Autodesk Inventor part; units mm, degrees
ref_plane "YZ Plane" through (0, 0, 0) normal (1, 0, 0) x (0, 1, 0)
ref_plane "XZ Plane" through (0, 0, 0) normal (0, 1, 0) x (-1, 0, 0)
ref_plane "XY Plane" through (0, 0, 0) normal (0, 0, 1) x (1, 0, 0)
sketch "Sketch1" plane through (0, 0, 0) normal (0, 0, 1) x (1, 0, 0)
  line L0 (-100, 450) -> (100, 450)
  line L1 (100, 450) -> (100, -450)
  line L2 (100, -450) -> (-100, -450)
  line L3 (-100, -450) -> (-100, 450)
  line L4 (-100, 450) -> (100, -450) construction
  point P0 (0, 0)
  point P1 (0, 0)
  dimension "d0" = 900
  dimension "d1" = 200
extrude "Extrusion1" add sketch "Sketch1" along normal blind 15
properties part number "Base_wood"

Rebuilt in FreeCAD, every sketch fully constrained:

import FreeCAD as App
import Part
import Sketcher
from FreeCAD import Vector
Q = App.Units.Quantity


def add_polygon(sketch, points):
    """Adds a closed chain of lines whose ends are joined by coincident constraints."""
    first, n = sketch.GeometryCount, len(points)
    for a, b in zip(points, points[1:] + points[:1]):
        sketch.addGeometry(Part.LineSegment(App.Vector(*a, 0), App.Vector(*b, 0)), False)
    for i in range(n):
        sketch.addConstraint(Sketcher.Constraint("Coincident", first + i, 2, first + (i + 1) % n, 1))

doc = App.newDocument("Part")
params = doc.addObject("Spreadsheet::Sheet", "Params")
for row, (alias, value) in enumerate([
    ("sketch1_width", "200 mm"),
    ("sketch1_height", "900 mm"),
    ("pad1_length", "15 mm"),
], start=1):
    params.set(f"A{row}", alias)
    params.set(f"B{row}", "=" + value)
    params.setAlias(f"B{row}", alias)

body = doc.addObject("PartDesign::Body", "Body")

# Sketch on XY plane
sketch1 = body.newObject("Sketcher::SketchObject", "Sketch")
sketch1.AttachmentSupport = (doc.getObject("XY_Plane"), [""])
sketch1.MapMode = "FlatFace"
add_polygon(sketch1, [(100, 450), (-100, 450), (-100, -450), (100, -450)])  # lines 0-3
sketch1.addConstraint([
    Sketcher.Constraint("Horizontal", 0),
    Sketcher.Constraint("Vertical", 1),
    Sketcher.Constraint("Horizontal", 2),
    Sketcher.Constraint("Vertical", 3),
    Sketcher.Constraint("Symmetric", 0, 2, 2, 2, -1, 1),
    Sketcher.Constraint("DistanceX", 0, 2, 0, 1, Q("200 mm")),
    Sketcher.Constraint("DistanceY", 1, 2, 1, 1, Q("900 mm")),
])
sketch1.setExpression("Constraints[9]", "Params.sketch1_width")
sketch1.setExpression("Constraints[10]", "Params.sketch1_height")
pad1 = body.newObject("PartDesign::Pad", "Pad")
pad1.Profile = sketch1
pad1.setExpression("Length", "Params.pad1_length")

doc.recompute()
